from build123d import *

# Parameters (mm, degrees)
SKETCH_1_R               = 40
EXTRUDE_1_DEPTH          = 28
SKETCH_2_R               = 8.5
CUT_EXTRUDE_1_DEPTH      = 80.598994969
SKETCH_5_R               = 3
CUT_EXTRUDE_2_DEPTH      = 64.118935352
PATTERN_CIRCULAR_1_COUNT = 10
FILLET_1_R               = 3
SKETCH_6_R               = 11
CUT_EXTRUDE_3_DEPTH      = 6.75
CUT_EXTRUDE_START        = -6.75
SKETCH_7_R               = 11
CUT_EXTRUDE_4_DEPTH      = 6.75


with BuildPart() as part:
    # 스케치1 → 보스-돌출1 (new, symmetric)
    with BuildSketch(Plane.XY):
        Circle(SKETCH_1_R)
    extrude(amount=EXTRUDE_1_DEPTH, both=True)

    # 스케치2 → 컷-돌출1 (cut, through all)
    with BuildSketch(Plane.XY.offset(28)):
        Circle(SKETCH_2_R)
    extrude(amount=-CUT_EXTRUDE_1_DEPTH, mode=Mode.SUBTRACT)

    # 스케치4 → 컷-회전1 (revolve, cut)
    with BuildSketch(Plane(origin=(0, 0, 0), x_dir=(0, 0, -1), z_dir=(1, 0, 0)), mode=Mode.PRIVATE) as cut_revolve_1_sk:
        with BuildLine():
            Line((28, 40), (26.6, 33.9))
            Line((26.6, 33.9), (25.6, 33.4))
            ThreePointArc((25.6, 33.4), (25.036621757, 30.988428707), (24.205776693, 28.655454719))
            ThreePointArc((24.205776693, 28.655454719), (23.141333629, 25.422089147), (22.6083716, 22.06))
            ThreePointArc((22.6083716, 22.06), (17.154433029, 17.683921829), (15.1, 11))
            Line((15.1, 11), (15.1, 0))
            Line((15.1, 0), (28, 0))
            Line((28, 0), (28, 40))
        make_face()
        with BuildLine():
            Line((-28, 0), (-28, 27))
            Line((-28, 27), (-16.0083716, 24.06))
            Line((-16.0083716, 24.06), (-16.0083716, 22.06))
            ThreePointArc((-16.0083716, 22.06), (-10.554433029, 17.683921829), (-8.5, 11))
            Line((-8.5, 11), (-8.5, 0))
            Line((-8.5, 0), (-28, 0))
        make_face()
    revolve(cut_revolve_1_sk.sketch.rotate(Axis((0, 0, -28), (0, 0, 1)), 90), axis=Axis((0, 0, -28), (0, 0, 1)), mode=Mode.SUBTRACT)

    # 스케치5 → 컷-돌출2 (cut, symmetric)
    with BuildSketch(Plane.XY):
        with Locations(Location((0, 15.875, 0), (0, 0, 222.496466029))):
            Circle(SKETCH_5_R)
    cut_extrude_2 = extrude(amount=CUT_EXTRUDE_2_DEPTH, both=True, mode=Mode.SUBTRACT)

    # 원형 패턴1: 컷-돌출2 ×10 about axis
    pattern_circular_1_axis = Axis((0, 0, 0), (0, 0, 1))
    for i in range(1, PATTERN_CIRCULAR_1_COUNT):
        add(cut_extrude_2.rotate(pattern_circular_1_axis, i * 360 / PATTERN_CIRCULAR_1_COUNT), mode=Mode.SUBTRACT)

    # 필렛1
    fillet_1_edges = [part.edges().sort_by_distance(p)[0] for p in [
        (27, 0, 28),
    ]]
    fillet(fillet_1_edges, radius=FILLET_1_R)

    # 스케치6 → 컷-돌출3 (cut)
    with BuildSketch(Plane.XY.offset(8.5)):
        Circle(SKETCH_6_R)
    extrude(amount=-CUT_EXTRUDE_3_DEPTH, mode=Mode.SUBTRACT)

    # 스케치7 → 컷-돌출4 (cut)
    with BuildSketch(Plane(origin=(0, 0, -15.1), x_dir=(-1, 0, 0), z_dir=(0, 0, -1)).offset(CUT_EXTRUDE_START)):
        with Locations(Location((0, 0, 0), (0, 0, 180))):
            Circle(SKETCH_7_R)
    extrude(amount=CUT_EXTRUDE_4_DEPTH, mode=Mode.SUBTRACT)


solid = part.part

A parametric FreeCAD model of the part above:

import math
import FreeCAD as App
import Part
import Sketcher


def edges_at(feature, points):
    """Names of the edges that pass closest to the given points."""
    edges = feature.Shape.Edges
    near = lambda p: min(range(len(edges)), key=lambda i: edges[i].distToShape(Part.Vertex(*p))[0])
    return sorted({f"Edge{near(p) + 1}" for p in points})

doc = App.newDocument("Part")
body = doc.addObject("PartDesign::Body", "Body")

# Sketch on XY plane
sketch1 = body.newObject("Sketcher::SketchObject", "Sketch")
sketch1.AttachmentSupport = (doc.getObject("XY_Plane"), [""])
sketch1.MapMode = "FlatFace"
sketch1.addGeometry(Part.Circle(App.Vector(0, 0, 0), App.Vector(0, 0, 1), 40), False)
sketch1.addConstraint([
    Sketcher.Constraint("Coincident", 0, 3, -1, 1),
    Sketcher.Constraint("Diameter", 0, 80.0),
])
pad1 = body.newObject("PartDesign::Pad", "Pad")
pad1.Profile = sketch1
pad1.Length = 56
pad1.Midplane = True

# Sketch on XY plane
sketch2 = body.newObject("Sketcher::SketchObject", "Sketch001")
sketch2.AttachmentSupport = (doc.getObject("XY_Plane"), [""])
sketch2.MapMode = "FlatFace"
sketch2.AttachmentOffset = App.Placement(App.Vector(0, 0, 28), App.Rotation())
sketch2.addGeometry(Part.Circle(App.Vector(0, 0, 0), App.Vector(0, 0, 1), 8.5), False)
sketch2.addConstraint([
    Sketcher.Constraint("Coincident", 0, 3, -1, 1),
    Sketcher.Constraint("Diameter", 0, 17.0),
])
pocket1 = body.newObject("PartDesign::Pocket", "Pocket")
pocket1.Profile = sketch2
pocket1.Type = "ThroughAll"

# Sketch on YZ plane
sketch3 = body.newObject("Sketcher::SketchObject", "Sketch002")
sketch3.AttachmentSupport = (doc.getObject("YZ_Plane"), [""])
sketch3.MapMode = "FlatFace"
sketch3.addGeometry([
    Part.LineSegment(App.Vector(40, -28, 0), App.Vector(33.9, -26.6, 0)),  # 0
    Part.LineSegment(App.Vector(33.9, -26.6, 0), App.Vector(33.4, -25.6, 0)),  # 1
    Part.ArcOfCircle(Part.Circle(App.Vector(37.191046, -3.929099, 0), App.Vector(0, 0, 1), 22), math.radians(-112.828957), math.radians(-99.922753)),  # 2
    Part.ArcOfCircle(Part.Circle(App.Vector(20.434128, -43.735904, 0), App.Vector(0, 0, 1), 21.19), math.radians(67.171043), math.radians(85.599469)),  # 3
    Part.ArcOfCircle(Part.Circle(App.Vector(11, -27, 0), App.Vector(0, 0, 1), 11.9), math.radians(21.656695), math.radians(90)),  # 4
    Part.LineSegment(App.Vector(11, -15.1, 0), App.Vector(0, -15.1, 0)),  # 5
    Part.LineSegment(App.Vector(0, -15.1, 0), App.Vector(0, -28, 0)),  # 6
    Part.LineSegment(App.Vector(0, -28, 0), App.Vector(40, -28, 0)),  # 7
    Part.LineSegment(App.Vector(27, 28, 0), App.Vector(0, 28, 0)),  # 8
    Part.LineSegment(App.Vector(0, 28, 0), App.Vector(0, 8.5, 0)),  # 9
    Part.LineSegment(App.Vector(0, 8.5, 0), App.Vector(11, 8.5, 0)),  # 10
    Part.ArcOfCircle(Part.Circle(App.Vector(11, 20.4, 0), App.Vector(0, 0, 1), 11.9), math.radians(-90), math.radians(-21.656695)),  # 11
    Part.LineSegment(App.Vector(22.06, 16.008372, 0), App.Vector(24.06, 16.008372, 0)),  # 12
    Part.LineSegment(App.Vector(24.06, 16.008372, 0), App.Vector(27, 28, 0)),  # 13
], False)
sketch3.addConstraint([
    Sketcher.Constraint("Coincident", 0, 2, 1, 1),
    Sketcher.Constraint("Coincident", 1, 2, 2, 2),
    Sketcher.Constraint("Tangent", 2, 1, 3, 1),
    Sketcher.Constraint("Coincident", 3, 2, 4, 1),
    Sketcher.Constraint("Tangent", 4, 2, 5, 1),
    Sketcher.Constraint("Coincident", 5, 2, 6, 1),
    Sketcher.Constraint("Coincident", 6, 2, 7, 1),
    Sketcher.Constraint("Coincident", 7, 2, 0, 1),
    Sketcher.Constraint("Coincident", 8, 2, 9, 1),
    Sketcher.Constraint("Coincident", 9, 2, 10, 1),
    Sketcher.Constraint("Tangent", 10, 2, 11, 1),
    Sketcher.Constraint("Coincident", 11, 2, 12, 1),
    Sketcher.Constraint("Coincident", 12, 2, 13, 1),
    Sketcher.Constraint("Coincident", 13, 2, 8, 1),
    Sketcher.Constraint("Horizontal", 5),
    Sketcher.Constraint("Vertical", 6),
    Sketcher.Constraint("Horizontal", 7),
    Sketcher.Constraint("Horizontal", 8),
    Sketcher.Constraint("Vertical", 9),
    Sketcher.Constraint("Horizontal", 10),
    Sketcher.Constraint("Horizontal", 12),
    Sketcher.Constraint("Equal", 4, 11),
    Sketcher.Constraint("Symmetric", 6, 2, 8, 2, -1, 1),
    Sketcher.Constraint("PointOnObject", 5, 2, -2),
    Sketcher.Constraint("Vertical", 4, 3, 11, 3),
    Sketcher.Constraint("Vertical", 3, 2, 11, 2),
    Sketcher.Constraint("Radius", 2, 22.0),
    Sketcher.Constraint("Radius", 4, 11.9),
    Sketcher.Constraint("DistanceX", 5, 2, 5, 1, 11.0),
    Sketcher.Constraint("DistanceX", 7, 1, 7, 2, 40.0),
    Sketcher.Constraint("DistanceX", 8, 2, 8, 1, 27.0),
    Sketcher.Constraint("DistanceX", 12, 1, 12, 2, 2.0),
    Sketcher.Constraint("Radius", 3, 21.19),
    Sketcher.Constraint("DistanceY", 6, 2, 6, 1, 12.9),
    Sketcher.Constraint("DistanceY", 9, 2, 9, 1, 19.5),
    Sketcher.Constraint("DistanceY", 4, 3, -1, 1, 27.0),
    Sketcher.Constraint("DistanceY", 0, 2, 11, 3, 47.0),
    Sketcher.Constraint("DistanceY", 0, 2, 1, 2, 1.0),
    Sketcher.Constraint("DistanceX", -1, 1, 0, 2, 33.9),
    Sketcher.Constraint("DistanceX", -1, 1, 1, 2, 33.4),
    Sketcher.Constraint("DistanceX", -1, 1, 3, 2, 22.06),
    Sketcher.Constraint("DistanceY", 2, 3, -1, 1, 3.929099),
])
groove = body.newObject("PartDesign::Groove", "Groove")
groove.Profile = sketch3
groove.ReferenceAxis = (sketch3, ["V_Axis"])
groove.Angle = 360

# Sketch on XY plane
sketch4 = body.newObject("Sketcher::SketchObject", "Sketch003")
sketch4.AttachmentSupport = (doc.getObject("XY_Plane"), [""])
sketch4.MapMode = "FlatFace"
sketch4.addGeometry(Part.Circle(App.Vector(0, 15.875, 0), App.Vector(0, 0, 1), 3), False)
sketch4.addConstraint([
    Sketcher.Constraint("PointOnObject", 0, 3, -2),
    Sketcher.Constraint("Diameter", 0, 6.0),
    Sketcher.Constraint("DistanceY", -1, 1, 0, 3, 15.875),
])
pocket2 = body.newObject("PartDesign::Pocket", "Pocket001")
pocket2.Profile = sketch4
pocket2.Length = 128.237871
pocket2.Midplane = True
doc.recompute()

polarpattern = body.newObject("PartDesign::PolarPattern", "PolarPattern")
polarpattern.Originals = [pocket2]
polarpattern.Axis = (doc.getObject("Z_Axis"), [""])
polarpattern.Angle = 360
polarpattern.Occurrences = 10
body.Tip = polarpattern
doc.recompute()

fillet = body.newObject("PartDesign::Fillet", "Fillet")
fillet.Base = (polarpattern, edges_at(polarpattern, [(27, 0, 28)]))
fillet.Radius = 3

# Sketch on XY plane
sketch5 = body.newObject("Sketcher::SketchObject", "Sketch004")
sketch5.AttachmentSupport = (doc.getObject("XY_Plane"), [""])
sketch5.MapMode = "FlatFace"
sketch5.AttachmentOffset = App.Placement(App.Vector(0, 0, 8.5), App.Rotation())
sketch5.addGeometry(Part.Circle(App.Vector(0, 0, 0), App.Vector(0, 0, 1), 11), False)
sketch5.addConstraint([
    Sketcher.Constraint("Coincident", 0, 3, -1, 1),
    Sketcher.Constraint("Diameter", 0, 22.0),
])
pocket3 = body.newObject("PartDesign::Pocket", "Pocket002")
pocket3.Profile = sketch5
pocket3.Length = 6.75

# Sketch on XY plane
sketch6 = body.newObject("Sketcher::SketchObject", "Sketch005")
sketch6.AttachmentSupport = (doc.getObject("XY_Plane"), [""])
sketch6.MapMode = "FlatFace"
sketch6.AttachmentOffset = App.Placement(App.Vector(0, 0, -8.35), App.Rotation())
sketch6.addGeometry(Part.Circle(App.Vector(0, 0, 0), App.Vector(0, 0, 1), 11), False)
sketch6.addConstraint([
    Sketcher.Constraint("Coincident", 0, 3, -1, 1),
    Sketcher.Constraint("Diameter", 0, 22.0),
])
pocket4 = body.newObject("PartDesign::Pocket", "Pocket003")
pocket4.Profile = sketch6
pocket4.Length = 6.75

doc.recompute()
